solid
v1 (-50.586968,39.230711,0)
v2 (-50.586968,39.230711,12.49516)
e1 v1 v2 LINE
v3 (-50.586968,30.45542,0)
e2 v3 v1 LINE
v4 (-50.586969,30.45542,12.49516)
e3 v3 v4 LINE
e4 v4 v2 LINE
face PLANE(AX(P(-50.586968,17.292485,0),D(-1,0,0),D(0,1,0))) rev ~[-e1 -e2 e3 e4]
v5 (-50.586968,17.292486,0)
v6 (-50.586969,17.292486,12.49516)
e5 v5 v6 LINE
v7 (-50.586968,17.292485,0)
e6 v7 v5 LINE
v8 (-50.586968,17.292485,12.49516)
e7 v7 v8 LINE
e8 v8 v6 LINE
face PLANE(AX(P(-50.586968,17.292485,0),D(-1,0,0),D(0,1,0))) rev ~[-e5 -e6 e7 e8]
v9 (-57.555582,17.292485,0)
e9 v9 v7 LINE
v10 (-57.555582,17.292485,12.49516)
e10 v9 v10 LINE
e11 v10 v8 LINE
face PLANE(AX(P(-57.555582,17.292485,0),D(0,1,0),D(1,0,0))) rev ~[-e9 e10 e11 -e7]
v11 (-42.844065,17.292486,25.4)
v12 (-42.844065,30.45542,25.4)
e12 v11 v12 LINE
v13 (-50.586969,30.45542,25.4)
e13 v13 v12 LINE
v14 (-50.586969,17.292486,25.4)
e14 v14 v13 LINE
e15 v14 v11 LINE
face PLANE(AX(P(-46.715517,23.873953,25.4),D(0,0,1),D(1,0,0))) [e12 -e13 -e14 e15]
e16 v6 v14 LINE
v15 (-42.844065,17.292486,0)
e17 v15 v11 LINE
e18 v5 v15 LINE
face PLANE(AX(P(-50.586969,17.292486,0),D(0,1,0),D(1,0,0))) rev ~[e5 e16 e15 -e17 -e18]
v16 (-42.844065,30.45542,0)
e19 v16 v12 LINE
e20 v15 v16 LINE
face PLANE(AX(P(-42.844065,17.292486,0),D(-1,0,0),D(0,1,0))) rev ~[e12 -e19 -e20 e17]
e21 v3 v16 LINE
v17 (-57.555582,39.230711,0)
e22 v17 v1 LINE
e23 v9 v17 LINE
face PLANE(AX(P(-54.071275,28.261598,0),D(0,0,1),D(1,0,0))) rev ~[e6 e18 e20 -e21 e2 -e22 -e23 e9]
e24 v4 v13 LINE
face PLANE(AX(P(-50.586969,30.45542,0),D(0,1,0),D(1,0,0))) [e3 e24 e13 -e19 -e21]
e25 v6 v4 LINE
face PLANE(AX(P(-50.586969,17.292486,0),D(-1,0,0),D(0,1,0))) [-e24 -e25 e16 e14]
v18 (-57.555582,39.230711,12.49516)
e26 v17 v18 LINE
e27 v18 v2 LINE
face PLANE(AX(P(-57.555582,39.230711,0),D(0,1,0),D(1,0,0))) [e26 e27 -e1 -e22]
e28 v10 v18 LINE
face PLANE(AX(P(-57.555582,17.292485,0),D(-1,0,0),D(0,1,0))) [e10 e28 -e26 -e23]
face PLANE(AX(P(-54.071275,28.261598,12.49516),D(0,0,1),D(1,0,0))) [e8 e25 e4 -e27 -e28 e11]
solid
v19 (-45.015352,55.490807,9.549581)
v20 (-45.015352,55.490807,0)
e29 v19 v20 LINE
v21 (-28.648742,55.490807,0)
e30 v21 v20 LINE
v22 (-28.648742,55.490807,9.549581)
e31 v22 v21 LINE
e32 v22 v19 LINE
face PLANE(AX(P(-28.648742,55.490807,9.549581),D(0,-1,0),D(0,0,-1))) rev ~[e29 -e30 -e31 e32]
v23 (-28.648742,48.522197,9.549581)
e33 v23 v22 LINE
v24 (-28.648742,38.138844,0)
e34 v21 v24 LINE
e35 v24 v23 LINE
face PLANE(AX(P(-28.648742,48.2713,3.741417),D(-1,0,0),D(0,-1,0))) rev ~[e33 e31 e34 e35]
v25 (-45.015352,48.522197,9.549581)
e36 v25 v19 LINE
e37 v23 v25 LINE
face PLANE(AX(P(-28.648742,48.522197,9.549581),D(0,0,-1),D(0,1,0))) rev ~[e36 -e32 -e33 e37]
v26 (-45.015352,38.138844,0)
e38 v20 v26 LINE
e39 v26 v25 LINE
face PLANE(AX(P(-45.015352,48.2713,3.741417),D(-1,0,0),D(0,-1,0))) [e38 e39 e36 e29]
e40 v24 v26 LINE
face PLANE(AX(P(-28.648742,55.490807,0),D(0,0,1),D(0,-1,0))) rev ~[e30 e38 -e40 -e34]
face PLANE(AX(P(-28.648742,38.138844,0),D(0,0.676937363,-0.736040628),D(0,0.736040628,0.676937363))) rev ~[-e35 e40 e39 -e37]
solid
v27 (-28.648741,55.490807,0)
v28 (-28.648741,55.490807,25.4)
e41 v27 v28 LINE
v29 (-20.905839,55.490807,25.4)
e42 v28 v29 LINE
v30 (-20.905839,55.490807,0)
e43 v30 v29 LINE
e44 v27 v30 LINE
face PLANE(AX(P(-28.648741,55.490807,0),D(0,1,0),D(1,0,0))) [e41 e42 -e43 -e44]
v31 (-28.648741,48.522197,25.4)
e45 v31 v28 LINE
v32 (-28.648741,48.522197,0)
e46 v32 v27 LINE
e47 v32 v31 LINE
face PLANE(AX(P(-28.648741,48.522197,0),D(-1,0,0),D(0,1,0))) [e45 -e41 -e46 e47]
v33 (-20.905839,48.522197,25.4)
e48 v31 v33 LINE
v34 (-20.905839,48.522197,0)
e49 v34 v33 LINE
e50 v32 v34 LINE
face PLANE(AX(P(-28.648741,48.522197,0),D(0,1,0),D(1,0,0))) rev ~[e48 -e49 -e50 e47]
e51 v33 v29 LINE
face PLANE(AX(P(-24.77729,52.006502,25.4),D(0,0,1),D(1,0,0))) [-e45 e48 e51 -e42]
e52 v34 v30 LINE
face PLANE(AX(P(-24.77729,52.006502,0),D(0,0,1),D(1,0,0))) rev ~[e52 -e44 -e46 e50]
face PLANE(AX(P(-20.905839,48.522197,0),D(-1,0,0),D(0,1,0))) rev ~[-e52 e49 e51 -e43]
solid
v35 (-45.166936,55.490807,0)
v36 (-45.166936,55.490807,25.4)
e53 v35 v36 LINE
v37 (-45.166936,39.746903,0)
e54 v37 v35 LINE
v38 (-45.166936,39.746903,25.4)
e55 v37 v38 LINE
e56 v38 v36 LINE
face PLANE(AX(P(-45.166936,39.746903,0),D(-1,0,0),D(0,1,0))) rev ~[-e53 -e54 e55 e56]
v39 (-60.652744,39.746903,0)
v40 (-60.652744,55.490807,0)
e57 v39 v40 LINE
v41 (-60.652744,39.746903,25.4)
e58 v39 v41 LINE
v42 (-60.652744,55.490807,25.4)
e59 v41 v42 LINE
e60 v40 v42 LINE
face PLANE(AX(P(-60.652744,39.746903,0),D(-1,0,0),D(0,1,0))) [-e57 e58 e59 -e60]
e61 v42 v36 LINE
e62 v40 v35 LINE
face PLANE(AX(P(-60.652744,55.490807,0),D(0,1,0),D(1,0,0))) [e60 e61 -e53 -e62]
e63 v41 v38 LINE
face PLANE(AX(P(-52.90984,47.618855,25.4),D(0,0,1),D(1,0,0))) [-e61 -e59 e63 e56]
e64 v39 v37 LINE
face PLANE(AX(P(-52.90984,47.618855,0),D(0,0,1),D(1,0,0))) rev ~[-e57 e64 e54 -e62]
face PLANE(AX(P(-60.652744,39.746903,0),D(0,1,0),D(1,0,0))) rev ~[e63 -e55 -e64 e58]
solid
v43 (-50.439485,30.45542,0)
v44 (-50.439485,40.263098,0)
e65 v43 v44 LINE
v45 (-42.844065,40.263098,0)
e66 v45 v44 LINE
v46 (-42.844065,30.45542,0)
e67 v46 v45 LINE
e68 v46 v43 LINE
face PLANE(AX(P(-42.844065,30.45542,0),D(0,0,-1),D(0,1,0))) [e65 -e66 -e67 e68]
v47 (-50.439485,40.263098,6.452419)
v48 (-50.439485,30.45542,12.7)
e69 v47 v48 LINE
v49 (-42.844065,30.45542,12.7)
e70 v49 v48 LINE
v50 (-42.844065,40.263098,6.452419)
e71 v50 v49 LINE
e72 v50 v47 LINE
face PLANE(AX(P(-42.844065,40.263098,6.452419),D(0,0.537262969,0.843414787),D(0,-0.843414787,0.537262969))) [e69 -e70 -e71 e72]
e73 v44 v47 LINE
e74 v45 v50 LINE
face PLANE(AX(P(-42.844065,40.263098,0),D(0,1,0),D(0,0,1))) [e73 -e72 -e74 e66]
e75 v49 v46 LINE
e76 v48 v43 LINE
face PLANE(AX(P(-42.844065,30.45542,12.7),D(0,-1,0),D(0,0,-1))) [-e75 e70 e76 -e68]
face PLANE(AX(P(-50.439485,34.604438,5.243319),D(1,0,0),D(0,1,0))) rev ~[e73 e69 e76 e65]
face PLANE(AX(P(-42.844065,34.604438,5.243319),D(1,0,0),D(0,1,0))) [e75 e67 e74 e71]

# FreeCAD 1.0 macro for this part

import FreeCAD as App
import Part
import Sketcher
from FreeCAD import Vector
Q = App.Units.Quantity

doc = App.newDocument("Part")
body = doc.addObject("PartDesign::Body", "Body")

sketch1 = body.newObject("Sketcher::SketchObject", "Sketch")
sketch1.AttachmentSupport = (doc.getObject("XY_Plane"), [""])
sketch1.MapMode = "FlatFace"
sketch1.addGeometry([
    Part.LineSegment(Vector(-61, 55, 0), Vector(-61, 40, 0)),
    Part.LineSegment(Vector(-61, 40, 0), Vector(-45, 40, 0)),
    Part.LineSegment(Vector(-45, 40, 0), Vector(-45, 55, 0)),
    Part.LineSegment(Vector(-45, 55, 0), Vector(-61, 55, 0)),
], False)
sketch1.addConstraint([
    Sketcher.Constraint("Coincident", 0, 2, 1, 1),
    Sketcher.Constraint("Coincident", 1, 2, 2, 1),
    Sketcher.Constraint("Coincident", 2, 2, 3, 1),
    Sketcher.Constraint("Coincident", 3, 2, 0, 1),
    Sketcher.Constraint("Vertical", 0),
    Sketcher.Constraint("Horizontal", 1),
    Sketcher.Constraint("Vertical", 2),
    Sketcher.Constraint("Horizontal", 3),
    Sketcher.Constraint("DistanceX", 1, 1, 1, 2, Q("15.485808 mm")),
    Sketcher.Constraint("DistanceY", 0, 2, 0, 1, Q("15.743904 mm")),
    Sketcher.Constraint("DistanceX", 0, 2, -1, 1, Q("60.652744 mm")),
    Sketcher.Constraint("DistanceY", -1, 1, 0, 2, Q("39.746903 mm")),
])
pad1 = body.newObject("PartDesign::Pad", "Pad")
pad1.Profile = sketch1
pad1.Length = Q("1 in")
body2 = doc.addObject("PartDesign::Body", "Body001")

sketch2 = body2.newObject("Sketcher::SketchObject", "Sketch001")
sketch2.AttachmentSupport = (doc.getObject("XY_Plane001"), [""])
sketch2.MapMode = "FlatFace"
sketch2.addGeometry([
    Part.LineSegment(Vector(-51, 30, 0), Vector(-51, 17, 0)),
    Part.LineSegment(Vector(-51, 17, 0), Vector(-43, 17, 0)),
    Part.LineSegment(Vector(-43, 17, 0), Vector(-43, 30, 0)),
    Part.LineSegment(Vector(-43, 30, 0), Vector(-51, 30, 0)),
], False)
sketch2.addConstraint([
    Sketcher.Constraint("Coincident", 0, 2, 1, 1),
    Sketcher.Constraint("Coincident", 1, 2, 2, 1),
    Sketcher.Constraint("Coincident", 2, 2, 3, 1),
    Sketcher.Constraint("Coincident", 3, 2, 0, 1),
    Sketcher.Constraint("Vertical", 0),
    Sketcher.Constraint("Horizontal", 1),
    Sketcher.Constraint("Vertical", 2),
    Sketcher.Constraint("Horizontal", 3),
    Sketcher.Constraint("DistanceX", 1, 1, 1, 2, Q("7.742904 mm")),
    Sketcher.Constraint("DistanceY", 0, 2, 0, 1, Q("13.162935 mm")),
    Sketcher.Constraint("DistanceX", 0, 2, -1, 1, Q("50.586969 mm")),
    Sketcher.Constraint("DistanceY", -1, 1, 2, 2, Q("30.45542 mm")),
])
pad2 = body2.newObject("PartDesign::Pad", "Pad001")
pad2.Profile = sketch2
pad2.Length = Q("1 in")

sketch3 = body2.newObject("Sketcher::SketchObject", "Sketch002")
sketch3.AttachmentSupport = (doc.getObject("XY_Plane001"), [""])
sketch3.MapMode = "FlatFace"
sketch3.addGeometry([
    Part.LineSegment(Vector(-58, 39, 0), Vector(-58, 17, 0)),
    Part.LineSegment(Vector(-58, 17, 0), Vector(-51, 17, 0)),
    Part.LineSegment(Vector(-51, 17, 0), Vector(-51, 39, 0)),
    Part.LineSegment(Vector(-51, 39, 0), Vector(-58, 39, 0)),
], False)
sketch3.addConstraint([
    Sketcher.Constraint("Coincident", 0, 2, 1, 1),
    Sketcher.Constraint("Coincident", 1, 2, 2, 1),
    Sketcher.Constraint("Coincident", 2, 2, 3, 1),
    Sketcher.Constraint("Coincident", 3, 2, 0, 1),
    Sketcher.Constraint("Vertical", 0),
    Sketcher.Constraint("Horizontal", 1),
    Sketcher.Constraint("Vertical", 2),
    Sketcher.Constraint("Horizontal", 3),
    Sketcher.Constraint("DistanceX", 1, 1, 1, 2, Q("6.968613 mm")),
    Sketcher.Constraint("DistanceY", 0, 2, 0, 1, Q("21.938227 mm")),
    Sketcher.Constraint("DistanceX", 0, 2, -1, 1, Q("57.555582 mm")),
    Sketcher.Constraint("DistanceY", -1, 1, 2, 2, Q("39.230711 mm")),
])
pad3 = body2.newObject("PartDesign::Pad", "Pad002")
pad3.Profile = sketch3
pad3.Length = 12.49516
body3 = doc.addObject("PartDesign::Body", "Body002")

sketch4 = body3.newObject("Sketcher::SketchObject", "Sketch003")
sketch4.AttachmentSupport = (doc.getObject("XY_Plane002"), [""])
sketch4.MapMode = "FlatFace"
sketch4.addGeometry([
    Part.LineSegment(Vector(-29, 55, 0), Vector(-29, 49, 0)),
    Part.LineSegment(Vector(-29, 49, 0), Vector(-21, 49, 0)),
    Part.LineSegment(Vector(-21, 49, 0), Vector(-21, 55, 0)),
    Part.LineSegment(Vector(-21, 55, 0), Vector(-29, 55, 0)),
], False)
sketch4.addConstraint([
    Sketcher.Constraint("Coincident", 0, 2, 1, 1),
    Sketcher.Constraint("Coincident", 1, 2, 2, 1),
    Sketcher.Constraint("Coincident", 2, 2, 3, 1),
    Sketcher.Constraint("Coincident", 3, 2, 0, 1),
    Sketcher.Constraint("Vertical", 0),
    Sketcher.Constraint("Horizontal", 1),
    Sketcher.Constraint("Vertical", 2),
    Sketcher.Constraint("Horizontal", 3),
    Sketcher.Constraint("DistanceY", 0, 2, 0, 1, Q("6.96861 mm")),
    Sketcher.Constraint("DistanceX", 1, 1, 1, 2, Q("7.742903 mm")),
    Sketcher.Constraint("DistanceX", 0, 2, -1, 1, Q("28.648741 mm")),
    Sketcher.Constraint("DistanceY", -1, 1, 0, 2, Q("48.522197 mm")),
])
pad4 = body3.newObject("PartDesign::Pad", "Pad003")
pad4.Profile = sketch4
pad4.Length = Q("1 in")
body4 = doc.addObject("PartDesign::Body", "Body003")

sketch5 = body4.newObject("Sketcher::SketchObject", "Sketch004")
sketch5.AttachmentSupport = (doc.getObject("YZ_Plane003"), [""])
sketch5.MapMode = "FlatFace"
sketch5.AttachmentOffset = App.Placement(Vector(0, 0, -42.844065), App.Rotation())
sketch5.addGeometry([
    Part.LineSegment(Vector(40, 6, 0), Vector(30, 13, 0)),
    Part.LineSegment(Vector(30, 13, 0), Vector(30, 0, 0)),
    Part.LineSegment(Vector(30, 0, 0), Vector(40, 0, 0)),
    Part.LineSegment(Vector(40, 0, 0), Vector(40, 6, 0)),
], False)
sketch5.addConstraint([
    Sketcher.Constraint("Coincident", 0, 2, 1, 1),
    Sketcher.Constraint("Coincident", 1, 2, 2, 1),
    Sketcher.Constraint("Coincident", 2, 2, 3, 1),
    Sketcher.Constraint("Coincident", 3, 2, 0, 1),
    Sketcher.Constraint("Vertical", 1),
    Sketcher.Constraint("Horizontal", 2),
    Sketcher.Constraint("Vertical", 3),
    Sketcher.Constraint("PointOnObject", 1, 2, -1),
    Sketcher.Constraint("DistanceY", 1, 2, 1, 1, Q("0.5 in")),
    Sketcher.Constraint("DistanceY", 3, 1, 3, 2, Q("6.452419 mm")),
    Sketcher.Constraint("DistanceX", 2, 1, 2, 2, Q("9.807678 mm")),
    Sketcher.Constraint("DistanceX", -1, 1, 0, 2, Q("30.45542 mm")),
])
pad5 = body4.newObject("PartDesign::Pad", "Pad004")
pad5.Profile = sketch5
pad5.Length = 7.59542
pad5.Reversed = True
body5 = doc.addObject("PartDesign::Body", "Body004")

sketch6 = body5.newObject("Sketcher::SketchObject", "Sketch005")
sketch6.AttachmentSupport = (doc.getObject("YZ_Plane004"), [""])
sketch6.MapMode = "FlatFace"
sketch6.AttachmentOffset = App.Placement(Vector(0, 0, -28.648742), App.Rotation())
sketch6.addGeometry([
    Part.LineSegment(Vector(49, 10, 0), Vector(55, 10, 0)),
    Part.LineSegment(Vector(55, 10, 0), Vector(55, 0, 0)),
    Part.LineSegment(Vector(55, 0, 0), Vector(38, 0, 0)),
    Part.LineSegment(Vector(38, 0, 0), Vector(49, 10, 0)),
], False)
sketch6.addConstraint([
    Sketcher.Constraint("Coincident", 0, 2, 1, 1),
    Sketcher.Constraint("Coincident", 1, 2, 2, 1),
    Sketcher.Constraint("Coincident", 2, 2, 3, 1),
    Sketcher.Constraint("Coincident", 3, 2, 0, 1),
    Sketcher.Constraint("Horizontal", 0),
    Sketcher.Constraint("Vertical", 1),
    Sketcher.Constraint("Horizontal", 2),
    Sketcher.Constraint("PointOnObject", 1, 2, -1),
    Sketcher.Constraint("DistanceX", 0, 1, 0, 2, Q("6.96861 mm")),
    Sketcher.Constraint("DistanceY", 1, 2, 1, 1, Q("9.549581 mm")),
    Sketcher.Constraint("DistanceX", 2, 2, 2, 1, Q("17.351963 mm")),
    Sketcher.Constraint("DistanceX", -1, 1, 0, 2, Q("55.490807 mm")),
])
pad6 = body5.newObject("PartDesign::Pad", "Pad005")
pad6.Profile = sketch6
pad6.Length = 16.36661
pad6.Reversed = True

doc.recompute()
